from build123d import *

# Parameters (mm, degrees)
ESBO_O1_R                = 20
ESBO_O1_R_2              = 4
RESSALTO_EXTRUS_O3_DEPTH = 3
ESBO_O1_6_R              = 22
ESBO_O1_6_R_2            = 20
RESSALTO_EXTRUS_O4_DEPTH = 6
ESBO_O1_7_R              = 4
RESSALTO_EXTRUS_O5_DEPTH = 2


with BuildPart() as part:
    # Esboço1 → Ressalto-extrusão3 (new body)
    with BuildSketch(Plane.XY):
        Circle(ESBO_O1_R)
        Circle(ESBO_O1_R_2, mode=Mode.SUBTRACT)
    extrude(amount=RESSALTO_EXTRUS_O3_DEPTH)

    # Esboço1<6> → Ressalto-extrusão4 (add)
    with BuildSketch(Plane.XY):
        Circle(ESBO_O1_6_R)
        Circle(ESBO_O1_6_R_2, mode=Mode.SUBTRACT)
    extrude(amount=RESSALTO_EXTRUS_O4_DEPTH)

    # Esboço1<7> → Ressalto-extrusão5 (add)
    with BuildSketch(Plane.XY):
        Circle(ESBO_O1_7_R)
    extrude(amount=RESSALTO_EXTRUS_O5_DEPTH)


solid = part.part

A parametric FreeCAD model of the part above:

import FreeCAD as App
import Part
import Sketcher

doc = App.newDocument("Part")
body = doc.addObject("PartDesign::Body", "Body")

# Sketch on XY plane
sketch1 = body.newObject("Sketcher::SketchObject", "Sketch")
sketch1.AttachmentSupport = (doc.getObject("XY_Plane"), [""])
sketch1.MapMode = "FlatFace"
sketch1.addGeometry([
    Part.Circle(App.Vector(0, 0, 0), App.Vector(0, 0, 1), 20),
    Part.Circle(App.Vector(0, 0, 0), App.Vector(0, 0, 1), 4),
], False)
sketch1.addConstraint([
    Sketcher.Constraint("Coincident", 0, 3, -1, 1),
    Sketcher.Constraint("Coincident", 1, 3, -1, 1),
    Sketcher.Constraint("Diameter", 0, 40.0),
    Sketcher.Constraint("Diameter", 1, 8.0),
])
pad1 = body.newObject("PartDesign::Pad", "Pad")
pad1.Profile = sketch1
pad1.Length = 3

# Sketch on XY plane
sketch2 = body.newObject("Sketcher::SketchObject", "Sketch001")
sketch2.AttachmentSupport = (doc.getObject("XY_Plane"), [""])
sketch2.MapMode = "FlatFace"
sketch2.addGeometry([
    Part.Circle(App.Vector(0, 0, 0), App.Vector(0, 0, 1), 22),
    Part.Circle(App.Vector(0, 0, 0), App.Vector(0, 0, 1), 20),
], False)
sketch2.addConstraint([
    Sketcher.Constraint("Coincident", 0, 3, -1, 1),
    Sketcher.Constraint("Coincident", 1, 3, -1, 1),
    Sketcher.Constraint("Diameter", 0, 44.0),
    Sketcher.Constraint("Diameter", 1, 40.0),
])
pad2 = body.newObject("PartDesign::Pad", "Pad001")
pad2.Profile = sketch2
pad2.Length = 6

# Sketch on XY plane
sketch3 = body.newObject("Sketcher::SketchObject", "Sketch002")
sketch3.AttachmentSupport = (doc.getObject("XY_Plane"), [""])
sketch3.MapMode = "FlatFace"
sketch3.addGeometry(Part.Circle(App.Vector(0, 0, 0), App.Vector(0, 0, 1), 4), False)
sketch3.addConstraint([
    Sketcher.Constraint("Coincident", 0, 3, -1, 1),
    Sketcher.Constraint("Diameter", 0, 8.0),
])
pad3 = body.newObject("PartDesign::Pad", "Pad002")
pad3.Profile = sketch3
pad3.Length = 2

doc.recompute()
